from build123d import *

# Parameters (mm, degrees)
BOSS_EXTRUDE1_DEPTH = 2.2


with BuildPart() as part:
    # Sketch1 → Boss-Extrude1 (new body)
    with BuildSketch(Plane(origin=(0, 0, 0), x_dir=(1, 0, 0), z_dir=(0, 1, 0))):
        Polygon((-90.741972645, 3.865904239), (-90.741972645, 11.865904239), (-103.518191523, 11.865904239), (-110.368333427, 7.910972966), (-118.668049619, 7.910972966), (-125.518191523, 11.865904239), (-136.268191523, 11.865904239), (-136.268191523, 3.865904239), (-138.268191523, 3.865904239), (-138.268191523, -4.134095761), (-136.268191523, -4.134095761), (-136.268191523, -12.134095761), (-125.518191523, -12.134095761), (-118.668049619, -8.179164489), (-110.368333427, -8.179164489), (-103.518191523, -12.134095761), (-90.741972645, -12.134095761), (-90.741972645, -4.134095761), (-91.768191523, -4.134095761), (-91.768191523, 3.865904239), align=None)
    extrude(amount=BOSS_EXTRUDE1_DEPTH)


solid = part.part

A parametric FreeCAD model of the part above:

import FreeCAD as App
import Part
import Sketcher
from FreeCAD import Vector
Q = App.Units.Quantity


def add_polygon(sketch, points):
    """Adds a closed chain of lines whose ends are joined by coincident constraints."""
    first, n = sketch.GeometryCount, len(points)
    for a, b in zip(points, points[1:] + points[:1]):
        sketch.addGeometry(Part.LineSegment(App.Vector(*a, 0), App.Vector(*b, 0)), False)
    for i in range(n):
        sketch.addConstraint(Sketcher.Constraint("Coincident", first + i, 2, first + (i + 1) % n, 1))

doc = App.newDocument("Part")
body = doc.addObject("PartDesign::Body", "Body")

# Sketch on XZ plane
sketch1 = body.newObject("Sketcher::SketchObject", "Sketch")
sketch1.AttachmentSupport = (doc.getObject("XZ_Plane"), [""])
sketch1.MapMode = "FlatFace"
add_polygon(sketch1, [(-90.741973, -3.865904), (-90.741973, -11.865904), (-103.518192, -11.865904), (-110.368333, -7.910973), (-118.66805, -7.910973), (-125.518192, -11.865904), (-136.268192, -11.865904), (-136.268192, -3.865904), (-138.268192, -3.865904), (-138.268192, 4.134096), (-136.268192, 4.134096), (-136.268192, 12.134096), (-125.518192, 12.134096), (-118.66805, 8.179164), (-110.368333, 8.179164), (-103.518192, 12.134096), (-90.741973, 12.134096), (-90.741973, 4.134096), (-91.768192, 4.134096), (-91.768192, -3.865904)])  # lines 0-19
sketch1.addConstraint(Sketcher.Constraint("Vertical", 0))
sketch1.addConstraint(Sketcher.Constraint("Horizontal", 1))
sketch1.addConstraint(Sketcher.Constraint("Horizontal", 3))
sketch1.addConstraint(Sketcher.Constraint("Horizontal", 5))
sketch1.addConstraint(Sketcher.Constraint("Vertical", 6))
sketch1.addConstraint(Sketcher.Constraint("Horizontal", 7))
sketch1.addConstraint(Sketcher.Constraint("Vertical", 8))
sketch1.addConstraint(Sketcher.Constraint("Horizontal", 9))
sketch1.addConstraint(Sketcher.Constraint("Vertical", 10))
sketch1.addConstraint(Sketcher.Constraint("Horizontal", 11))
sketch1.addConstraint(Sketcher.Constraint("Horizontal", 13))
sketch1.addConstraint(Sketcher.Constraint("Horizontal", 15))
sketch1.addConstraint(Sketcher.Constraint("Vertical", 16))
sketch1.addConstraint(Sketcher.Constraint("Horizontal", 17))
sketch1.addConstraint(Sketcher.Constraint("Vertical", 18))
sketch1.addConstraint(Sketcher.Constraint("Horizontal", 19))
sketch1.addConstraint(Sketcher.Constraint("Parallel", 2, 12))
sketch1.addConstraint(Sketcher.Constraint("Parallel", 4, 14))
sketch1.addConstraint(Sketcher.Constraint("Horizontal", 1, 2, 4, 2))
sketch1.addConstraint(Sketcher.Constraint("Horizontal", 11, 2, 14, 2))
sketch1.addConstraint(Sketcher.Constraint("Horizontal", 9, 2, 16, 2))
sketch1.addConstraint(Sketcher.Constraint("Horizontal", 7, 2, 18, 2))
sketch1.addConstraint(Sketcher.Constraint("Vertical", 6, 2, 9, 2))
sketch1.addConstraint(Sketcher.Constraint("Vertical", 4, 2, 11, 2))
sketch1.addConstraint(Sketcher.Constraint("Vertical", 3, 2, 12, 2))
sketch1.addConstraint(Sketcher.Constraint("Vertical", 2, 2, 13, 2))
sketch1.addConstraint(Sketcher.Constraint("Vertical", 1, 2, 14, 2))
sketch1.addConstraint(Sketcher.Constraint("Vertical", 0, 2, 15, 2))
sketch1.addConstraint(Sketcher.Constraint("Equal", 6, 8))
sketch1.addConstraint(Sketcher.Constraint("Equal", 8, 10))
sketch1.addConstraint(Sketcher.Constraint("DistanceX", 7, 2, 7, 1, 2.0))
sketch1.addConstraint(Sketcher.Constraint("DistanceY", 0, 2, 0, 1, 8.0))
sketch1.addConstraint(Sketcher.Constraint("Angle", 2, Q("150 deg")))
sketch1.addConstraint(Sketcher.Constraint("DistanceX", 4, 2, 1, 2, 22.0))
sketch1.addConstraint(Sketcher.Constraint("DistanceX", 5, 2, 5, 1, 10.75))
sketch1.addConstraint(Sketcher.Constraint("DistanceX", 14, 2, 17, 2, 11.75))
sketch1.addConstraint(Sketcher.Constraint("DistanceX", 1, 2, 1, 1, 12.776219))
sketch1.addConstraint(Sketcher.Constraint("DistanceX", 3, 2, 3, 1, 8.299716))
sketch1.addConstraint(Sketcher.Constraint("DistanceX", 1, 2, -1, 1, 103.518192))
sketch1.addConstraint(Sketcher.Constraint("DistanceY", 0, 2, -1, 1, 11.865904))
pad1 = body.newObject("PartDesign::Pad", "Pad")
pad1.Profile = sketch1
pad1.Length = 2.2
pad1.Reversed = True

doc.recompute()
